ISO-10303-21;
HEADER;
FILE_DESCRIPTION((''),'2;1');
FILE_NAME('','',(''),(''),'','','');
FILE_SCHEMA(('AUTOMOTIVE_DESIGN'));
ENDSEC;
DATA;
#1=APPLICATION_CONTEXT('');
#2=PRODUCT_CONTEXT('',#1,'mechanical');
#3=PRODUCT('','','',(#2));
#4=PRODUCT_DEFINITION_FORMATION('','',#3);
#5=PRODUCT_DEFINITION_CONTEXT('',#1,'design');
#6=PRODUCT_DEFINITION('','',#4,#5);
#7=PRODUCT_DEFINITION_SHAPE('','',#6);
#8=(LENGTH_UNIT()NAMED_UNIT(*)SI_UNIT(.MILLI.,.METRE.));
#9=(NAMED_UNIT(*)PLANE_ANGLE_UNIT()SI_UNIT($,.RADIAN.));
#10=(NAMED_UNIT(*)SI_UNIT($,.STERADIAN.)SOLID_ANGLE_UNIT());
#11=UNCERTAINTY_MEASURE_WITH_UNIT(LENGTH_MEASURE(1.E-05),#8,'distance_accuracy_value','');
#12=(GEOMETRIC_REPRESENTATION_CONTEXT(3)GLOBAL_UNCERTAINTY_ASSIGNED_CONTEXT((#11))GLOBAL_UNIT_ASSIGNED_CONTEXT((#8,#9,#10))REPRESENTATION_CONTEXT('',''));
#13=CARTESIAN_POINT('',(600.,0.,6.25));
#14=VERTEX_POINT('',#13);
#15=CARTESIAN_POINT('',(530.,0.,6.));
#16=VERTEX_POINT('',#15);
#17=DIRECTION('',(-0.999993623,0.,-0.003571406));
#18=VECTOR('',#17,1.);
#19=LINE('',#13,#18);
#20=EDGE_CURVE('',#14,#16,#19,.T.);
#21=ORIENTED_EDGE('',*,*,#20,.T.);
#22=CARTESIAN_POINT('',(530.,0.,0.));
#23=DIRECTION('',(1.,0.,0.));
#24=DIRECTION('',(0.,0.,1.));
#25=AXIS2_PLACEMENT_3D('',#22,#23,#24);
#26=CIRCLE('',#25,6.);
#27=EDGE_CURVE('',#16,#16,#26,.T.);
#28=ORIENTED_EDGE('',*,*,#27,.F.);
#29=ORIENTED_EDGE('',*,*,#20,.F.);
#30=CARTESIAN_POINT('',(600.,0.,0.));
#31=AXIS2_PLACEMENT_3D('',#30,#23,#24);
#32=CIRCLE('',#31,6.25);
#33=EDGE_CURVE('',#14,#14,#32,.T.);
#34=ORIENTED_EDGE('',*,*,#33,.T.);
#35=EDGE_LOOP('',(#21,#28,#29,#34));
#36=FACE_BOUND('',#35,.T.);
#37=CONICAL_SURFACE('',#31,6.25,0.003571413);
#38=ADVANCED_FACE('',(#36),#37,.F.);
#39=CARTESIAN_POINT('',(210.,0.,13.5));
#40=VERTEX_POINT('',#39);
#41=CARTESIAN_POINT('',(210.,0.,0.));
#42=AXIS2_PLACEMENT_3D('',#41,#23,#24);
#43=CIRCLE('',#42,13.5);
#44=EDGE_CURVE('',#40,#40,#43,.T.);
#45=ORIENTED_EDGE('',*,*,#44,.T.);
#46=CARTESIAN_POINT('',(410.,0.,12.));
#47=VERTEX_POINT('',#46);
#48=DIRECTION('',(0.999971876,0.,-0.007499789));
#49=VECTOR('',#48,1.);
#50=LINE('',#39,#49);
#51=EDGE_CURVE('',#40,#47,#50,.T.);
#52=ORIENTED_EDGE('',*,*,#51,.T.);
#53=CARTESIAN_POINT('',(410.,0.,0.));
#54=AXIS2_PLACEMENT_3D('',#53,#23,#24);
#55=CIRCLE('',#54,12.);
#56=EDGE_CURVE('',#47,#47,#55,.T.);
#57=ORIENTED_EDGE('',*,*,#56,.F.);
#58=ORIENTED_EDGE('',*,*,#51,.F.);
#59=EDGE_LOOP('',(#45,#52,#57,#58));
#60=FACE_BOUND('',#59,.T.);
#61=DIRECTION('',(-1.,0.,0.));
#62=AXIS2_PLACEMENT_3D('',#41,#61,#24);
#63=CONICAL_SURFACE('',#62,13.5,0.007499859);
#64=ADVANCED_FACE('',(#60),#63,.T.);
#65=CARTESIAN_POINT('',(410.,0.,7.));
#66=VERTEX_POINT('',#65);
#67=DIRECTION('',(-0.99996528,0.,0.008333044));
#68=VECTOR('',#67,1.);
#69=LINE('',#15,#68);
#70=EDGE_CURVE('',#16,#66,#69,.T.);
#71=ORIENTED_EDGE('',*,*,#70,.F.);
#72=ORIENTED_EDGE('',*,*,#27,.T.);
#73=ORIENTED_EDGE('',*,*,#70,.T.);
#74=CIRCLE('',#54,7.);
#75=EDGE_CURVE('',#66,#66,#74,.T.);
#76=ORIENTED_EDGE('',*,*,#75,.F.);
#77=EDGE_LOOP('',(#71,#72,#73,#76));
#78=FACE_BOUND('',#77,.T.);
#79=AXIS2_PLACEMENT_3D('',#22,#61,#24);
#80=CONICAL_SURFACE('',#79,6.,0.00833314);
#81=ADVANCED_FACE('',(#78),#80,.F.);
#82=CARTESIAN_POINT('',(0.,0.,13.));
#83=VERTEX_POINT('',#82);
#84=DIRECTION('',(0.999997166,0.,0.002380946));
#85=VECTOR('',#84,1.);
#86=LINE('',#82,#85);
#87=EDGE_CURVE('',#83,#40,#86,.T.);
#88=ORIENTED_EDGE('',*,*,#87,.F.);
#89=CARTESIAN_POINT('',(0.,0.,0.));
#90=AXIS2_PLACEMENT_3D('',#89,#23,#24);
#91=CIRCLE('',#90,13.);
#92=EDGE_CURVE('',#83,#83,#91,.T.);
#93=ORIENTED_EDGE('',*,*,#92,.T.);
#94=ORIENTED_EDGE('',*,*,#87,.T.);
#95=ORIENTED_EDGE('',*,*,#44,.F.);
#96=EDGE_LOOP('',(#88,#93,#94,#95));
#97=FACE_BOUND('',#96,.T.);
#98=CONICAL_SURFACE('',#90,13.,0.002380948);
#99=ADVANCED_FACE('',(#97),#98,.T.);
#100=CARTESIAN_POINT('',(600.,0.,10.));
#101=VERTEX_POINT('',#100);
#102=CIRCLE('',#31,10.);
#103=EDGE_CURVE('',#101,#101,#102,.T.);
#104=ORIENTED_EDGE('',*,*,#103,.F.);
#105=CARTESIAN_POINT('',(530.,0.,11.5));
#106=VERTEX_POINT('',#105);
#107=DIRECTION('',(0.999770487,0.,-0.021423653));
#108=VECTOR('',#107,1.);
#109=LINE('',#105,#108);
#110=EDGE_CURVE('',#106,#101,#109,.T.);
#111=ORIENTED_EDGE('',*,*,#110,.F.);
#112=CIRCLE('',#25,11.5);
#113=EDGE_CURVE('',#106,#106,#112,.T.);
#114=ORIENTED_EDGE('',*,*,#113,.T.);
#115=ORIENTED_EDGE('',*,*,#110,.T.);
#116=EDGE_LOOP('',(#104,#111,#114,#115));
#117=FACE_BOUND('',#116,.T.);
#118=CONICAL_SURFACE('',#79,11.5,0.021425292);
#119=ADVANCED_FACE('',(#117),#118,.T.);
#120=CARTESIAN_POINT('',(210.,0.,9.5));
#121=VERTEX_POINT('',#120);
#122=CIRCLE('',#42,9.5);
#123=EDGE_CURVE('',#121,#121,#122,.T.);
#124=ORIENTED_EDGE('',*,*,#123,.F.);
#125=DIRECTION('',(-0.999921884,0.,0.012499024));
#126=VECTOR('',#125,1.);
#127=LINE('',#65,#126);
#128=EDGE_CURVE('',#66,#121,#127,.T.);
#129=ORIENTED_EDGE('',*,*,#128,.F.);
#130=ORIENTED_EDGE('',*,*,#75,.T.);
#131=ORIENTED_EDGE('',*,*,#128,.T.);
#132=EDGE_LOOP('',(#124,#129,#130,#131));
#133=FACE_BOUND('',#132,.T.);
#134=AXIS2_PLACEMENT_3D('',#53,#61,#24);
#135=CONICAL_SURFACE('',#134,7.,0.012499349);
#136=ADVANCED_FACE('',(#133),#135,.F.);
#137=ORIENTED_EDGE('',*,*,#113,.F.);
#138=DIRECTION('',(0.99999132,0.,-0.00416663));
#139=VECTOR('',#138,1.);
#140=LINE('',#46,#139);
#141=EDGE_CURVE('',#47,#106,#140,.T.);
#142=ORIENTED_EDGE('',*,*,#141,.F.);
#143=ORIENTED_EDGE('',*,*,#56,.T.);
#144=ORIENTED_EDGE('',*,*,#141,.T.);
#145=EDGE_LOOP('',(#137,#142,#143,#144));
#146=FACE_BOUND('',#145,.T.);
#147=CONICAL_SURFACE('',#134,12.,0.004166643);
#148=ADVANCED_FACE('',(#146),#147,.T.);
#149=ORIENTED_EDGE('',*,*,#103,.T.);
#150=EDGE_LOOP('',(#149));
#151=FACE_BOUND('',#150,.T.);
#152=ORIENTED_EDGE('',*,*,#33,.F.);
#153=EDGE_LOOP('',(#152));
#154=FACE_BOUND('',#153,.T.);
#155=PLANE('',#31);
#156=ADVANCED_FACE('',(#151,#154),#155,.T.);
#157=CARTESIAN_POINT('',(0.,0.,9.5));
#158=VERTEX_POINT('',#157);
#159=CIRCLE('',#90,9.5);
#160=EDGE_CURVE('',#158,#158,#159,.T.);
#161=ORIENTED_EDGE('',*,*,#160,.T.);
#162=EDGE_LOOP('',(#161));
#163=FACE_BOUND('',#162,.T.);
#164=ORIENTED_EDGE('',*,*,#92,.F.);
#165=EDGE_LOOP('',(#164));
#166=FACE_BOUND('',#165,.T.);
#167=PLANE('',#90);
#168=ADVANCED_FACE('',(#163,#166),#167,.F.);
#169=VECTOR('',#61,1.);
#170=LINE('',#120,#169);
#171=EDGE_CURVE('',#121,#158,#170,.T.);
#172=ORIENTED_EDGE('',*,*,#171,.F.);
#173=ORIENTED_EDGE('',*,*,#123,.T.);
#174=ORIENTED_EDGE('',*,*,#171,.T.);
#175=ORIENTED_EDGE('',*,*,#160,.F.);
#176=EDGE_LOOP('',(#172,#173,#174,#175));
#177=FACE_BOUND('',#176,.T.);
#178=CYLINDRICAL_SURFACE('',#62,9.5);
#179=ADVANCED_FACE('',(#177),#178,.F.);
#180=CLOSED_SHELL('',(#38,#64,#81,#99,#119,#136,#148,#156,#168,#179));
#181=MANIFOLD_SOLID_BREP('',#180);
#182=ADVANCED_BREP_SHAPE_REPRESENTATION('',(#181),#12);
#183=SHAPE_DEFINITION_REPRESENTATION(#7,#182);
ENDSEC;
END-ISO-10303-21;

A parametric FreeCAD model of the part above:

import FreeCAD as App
import Part
import Sketcher
from FreeCAD import Vector

doc = App.newDocument("Part")
body = doc.addObject("PartDesign::Body", "Body")

# Sketch on XZ plane
sketch1 = body.newObject("Sketcher::SketchObject", "Sketch")
sketch1.AttachmentSupport = (doc.getObject("XZ_Plane"), [""])
sketch1.MapMode = "FlatFace"
sketch1.addGeometry([
    Part.LineSegment(Vector(0, 9.5, 0), Vector(210, 9.5, 0)),  # 0
    Part.LineSegment(Vector(210, 9.5, 0), Vector(410, 7, 0)),  # 1
    Part.LineSegment(Vector(410, 7, 0), Vector(530, 6, 0)),  # 2
    Part.LineSegment(Vector(530, 6, 0), Vector(600, 6.2, 0)),  # 3
    Part.LineSegment(Vector(600, 6.2, 0), Vector(600, 10, 0)),  # 4
    Part.LineSegment(Vector(600, 10, 0), Vector(530, 11.5, 0)),  # 5
    Part.LineSegment(Vector(530, 11.5, 0), Vector(410, 12, 0)),  # 6
    Part.LineSegment(Vector(410, 12, 0), Vector(210, 13.5, 0)),  # 7
    Part.LineSegment(Vector(210, 13.5, 0), Vector(0, 13, 0)),  # 8
    Part.LineSegment(Vector(0, 13, 0), Vector(0, 9.5, 0)),  # 9
], False)
sketch1.addConstraint([
    Sketcher.Constraint("Coincident", 0, 2, 1, 1),
    Sketcher.Constraint("Coincident", 1, 2, 2, 1),
    Sketcher.Constraint("Coincident", 2, 2, 3, 1),
    Sketcher.Constraint("Coincident", 3, 2, 4, 1),
    Sketcher.Constraint("Coincident", 4, 2, 5, 1),
    Sketcher.Constraint("Coincident", 5, 2, 6, 1),
    Sketcher.Constraint("Coincident", 6, 2, 7, 1),
    Sketcher.Constraint("Coincident", 7, 2, 8, 1),
    Sketcher.Constraint("Coincident", 8, 2, 9, 1),
    Sketcher.Constraint("Coincident", 9, 2, 0, 1),
    Sketcher.Constraint("Horizontal", 0),
    Sketcher.Constraint("Vertical", 4),
    Sketcher.Constraint("Vertical", 9),
    Sketcher.Constraint("PointOnObject", 8, 2, -2),
    Sketcher.Constraint("Vertical", 2, 2, 5, 2),
    Sketcher.Constraint("Vertical", 1, 2, 6, 2),
    Sketcher.Constraint("Vertical", 0, 2, 7, 2),
    Sketcher.Constraint("DistanceX", 0, 1, 0, 2, 210.0),
    Sketcher.Constraint("DistanceY", 9, 2, 9, 1, 3.5),
    Sketcher.Constraint("DistanceX", -1, 1, 1, 2, 410.0),
    Sketcher.Constraint("DistanceY", -1, 1, 1, 2, 7.0),
    Sketcher.Constraint("DistanceX", -1, 1, 2, 2, 530.0),
    Sketcher.Constraint("DistanceY", -1, 1, 2, 2, 6.0),
    Sketcher.Constraint("DistanceX", -1, 1, 3, 2, 600.0),
    Sketcher.Constraint("DistanceY", -1, 1, 4, 2, 10.0),
    Sketcher.Constraint("DistanceY", -1, 1, 6, 2, 12.0),
    Sketcher.Constraint("DistanceY", -1, 1, 8, 2, 13.0),
    Sketcher.Constraint("DistanceY", 0, 2, 5, 2, 2.0),
    Sketcher.Constraint("DistanceY", 0, 2, 7, 2, 4.0),
    Sketcher.Constraint("DistanceY", 4, 1, 4, 2, 3.75),
])
revolution = body.newObject("PartDesign::Revolution", "Revolution")
revolution.Profile = sketch1
revolution.ReferenceAxis = (sketch1, ["H_Axis"])
revolution.Angle = 360

doc.recompute()
